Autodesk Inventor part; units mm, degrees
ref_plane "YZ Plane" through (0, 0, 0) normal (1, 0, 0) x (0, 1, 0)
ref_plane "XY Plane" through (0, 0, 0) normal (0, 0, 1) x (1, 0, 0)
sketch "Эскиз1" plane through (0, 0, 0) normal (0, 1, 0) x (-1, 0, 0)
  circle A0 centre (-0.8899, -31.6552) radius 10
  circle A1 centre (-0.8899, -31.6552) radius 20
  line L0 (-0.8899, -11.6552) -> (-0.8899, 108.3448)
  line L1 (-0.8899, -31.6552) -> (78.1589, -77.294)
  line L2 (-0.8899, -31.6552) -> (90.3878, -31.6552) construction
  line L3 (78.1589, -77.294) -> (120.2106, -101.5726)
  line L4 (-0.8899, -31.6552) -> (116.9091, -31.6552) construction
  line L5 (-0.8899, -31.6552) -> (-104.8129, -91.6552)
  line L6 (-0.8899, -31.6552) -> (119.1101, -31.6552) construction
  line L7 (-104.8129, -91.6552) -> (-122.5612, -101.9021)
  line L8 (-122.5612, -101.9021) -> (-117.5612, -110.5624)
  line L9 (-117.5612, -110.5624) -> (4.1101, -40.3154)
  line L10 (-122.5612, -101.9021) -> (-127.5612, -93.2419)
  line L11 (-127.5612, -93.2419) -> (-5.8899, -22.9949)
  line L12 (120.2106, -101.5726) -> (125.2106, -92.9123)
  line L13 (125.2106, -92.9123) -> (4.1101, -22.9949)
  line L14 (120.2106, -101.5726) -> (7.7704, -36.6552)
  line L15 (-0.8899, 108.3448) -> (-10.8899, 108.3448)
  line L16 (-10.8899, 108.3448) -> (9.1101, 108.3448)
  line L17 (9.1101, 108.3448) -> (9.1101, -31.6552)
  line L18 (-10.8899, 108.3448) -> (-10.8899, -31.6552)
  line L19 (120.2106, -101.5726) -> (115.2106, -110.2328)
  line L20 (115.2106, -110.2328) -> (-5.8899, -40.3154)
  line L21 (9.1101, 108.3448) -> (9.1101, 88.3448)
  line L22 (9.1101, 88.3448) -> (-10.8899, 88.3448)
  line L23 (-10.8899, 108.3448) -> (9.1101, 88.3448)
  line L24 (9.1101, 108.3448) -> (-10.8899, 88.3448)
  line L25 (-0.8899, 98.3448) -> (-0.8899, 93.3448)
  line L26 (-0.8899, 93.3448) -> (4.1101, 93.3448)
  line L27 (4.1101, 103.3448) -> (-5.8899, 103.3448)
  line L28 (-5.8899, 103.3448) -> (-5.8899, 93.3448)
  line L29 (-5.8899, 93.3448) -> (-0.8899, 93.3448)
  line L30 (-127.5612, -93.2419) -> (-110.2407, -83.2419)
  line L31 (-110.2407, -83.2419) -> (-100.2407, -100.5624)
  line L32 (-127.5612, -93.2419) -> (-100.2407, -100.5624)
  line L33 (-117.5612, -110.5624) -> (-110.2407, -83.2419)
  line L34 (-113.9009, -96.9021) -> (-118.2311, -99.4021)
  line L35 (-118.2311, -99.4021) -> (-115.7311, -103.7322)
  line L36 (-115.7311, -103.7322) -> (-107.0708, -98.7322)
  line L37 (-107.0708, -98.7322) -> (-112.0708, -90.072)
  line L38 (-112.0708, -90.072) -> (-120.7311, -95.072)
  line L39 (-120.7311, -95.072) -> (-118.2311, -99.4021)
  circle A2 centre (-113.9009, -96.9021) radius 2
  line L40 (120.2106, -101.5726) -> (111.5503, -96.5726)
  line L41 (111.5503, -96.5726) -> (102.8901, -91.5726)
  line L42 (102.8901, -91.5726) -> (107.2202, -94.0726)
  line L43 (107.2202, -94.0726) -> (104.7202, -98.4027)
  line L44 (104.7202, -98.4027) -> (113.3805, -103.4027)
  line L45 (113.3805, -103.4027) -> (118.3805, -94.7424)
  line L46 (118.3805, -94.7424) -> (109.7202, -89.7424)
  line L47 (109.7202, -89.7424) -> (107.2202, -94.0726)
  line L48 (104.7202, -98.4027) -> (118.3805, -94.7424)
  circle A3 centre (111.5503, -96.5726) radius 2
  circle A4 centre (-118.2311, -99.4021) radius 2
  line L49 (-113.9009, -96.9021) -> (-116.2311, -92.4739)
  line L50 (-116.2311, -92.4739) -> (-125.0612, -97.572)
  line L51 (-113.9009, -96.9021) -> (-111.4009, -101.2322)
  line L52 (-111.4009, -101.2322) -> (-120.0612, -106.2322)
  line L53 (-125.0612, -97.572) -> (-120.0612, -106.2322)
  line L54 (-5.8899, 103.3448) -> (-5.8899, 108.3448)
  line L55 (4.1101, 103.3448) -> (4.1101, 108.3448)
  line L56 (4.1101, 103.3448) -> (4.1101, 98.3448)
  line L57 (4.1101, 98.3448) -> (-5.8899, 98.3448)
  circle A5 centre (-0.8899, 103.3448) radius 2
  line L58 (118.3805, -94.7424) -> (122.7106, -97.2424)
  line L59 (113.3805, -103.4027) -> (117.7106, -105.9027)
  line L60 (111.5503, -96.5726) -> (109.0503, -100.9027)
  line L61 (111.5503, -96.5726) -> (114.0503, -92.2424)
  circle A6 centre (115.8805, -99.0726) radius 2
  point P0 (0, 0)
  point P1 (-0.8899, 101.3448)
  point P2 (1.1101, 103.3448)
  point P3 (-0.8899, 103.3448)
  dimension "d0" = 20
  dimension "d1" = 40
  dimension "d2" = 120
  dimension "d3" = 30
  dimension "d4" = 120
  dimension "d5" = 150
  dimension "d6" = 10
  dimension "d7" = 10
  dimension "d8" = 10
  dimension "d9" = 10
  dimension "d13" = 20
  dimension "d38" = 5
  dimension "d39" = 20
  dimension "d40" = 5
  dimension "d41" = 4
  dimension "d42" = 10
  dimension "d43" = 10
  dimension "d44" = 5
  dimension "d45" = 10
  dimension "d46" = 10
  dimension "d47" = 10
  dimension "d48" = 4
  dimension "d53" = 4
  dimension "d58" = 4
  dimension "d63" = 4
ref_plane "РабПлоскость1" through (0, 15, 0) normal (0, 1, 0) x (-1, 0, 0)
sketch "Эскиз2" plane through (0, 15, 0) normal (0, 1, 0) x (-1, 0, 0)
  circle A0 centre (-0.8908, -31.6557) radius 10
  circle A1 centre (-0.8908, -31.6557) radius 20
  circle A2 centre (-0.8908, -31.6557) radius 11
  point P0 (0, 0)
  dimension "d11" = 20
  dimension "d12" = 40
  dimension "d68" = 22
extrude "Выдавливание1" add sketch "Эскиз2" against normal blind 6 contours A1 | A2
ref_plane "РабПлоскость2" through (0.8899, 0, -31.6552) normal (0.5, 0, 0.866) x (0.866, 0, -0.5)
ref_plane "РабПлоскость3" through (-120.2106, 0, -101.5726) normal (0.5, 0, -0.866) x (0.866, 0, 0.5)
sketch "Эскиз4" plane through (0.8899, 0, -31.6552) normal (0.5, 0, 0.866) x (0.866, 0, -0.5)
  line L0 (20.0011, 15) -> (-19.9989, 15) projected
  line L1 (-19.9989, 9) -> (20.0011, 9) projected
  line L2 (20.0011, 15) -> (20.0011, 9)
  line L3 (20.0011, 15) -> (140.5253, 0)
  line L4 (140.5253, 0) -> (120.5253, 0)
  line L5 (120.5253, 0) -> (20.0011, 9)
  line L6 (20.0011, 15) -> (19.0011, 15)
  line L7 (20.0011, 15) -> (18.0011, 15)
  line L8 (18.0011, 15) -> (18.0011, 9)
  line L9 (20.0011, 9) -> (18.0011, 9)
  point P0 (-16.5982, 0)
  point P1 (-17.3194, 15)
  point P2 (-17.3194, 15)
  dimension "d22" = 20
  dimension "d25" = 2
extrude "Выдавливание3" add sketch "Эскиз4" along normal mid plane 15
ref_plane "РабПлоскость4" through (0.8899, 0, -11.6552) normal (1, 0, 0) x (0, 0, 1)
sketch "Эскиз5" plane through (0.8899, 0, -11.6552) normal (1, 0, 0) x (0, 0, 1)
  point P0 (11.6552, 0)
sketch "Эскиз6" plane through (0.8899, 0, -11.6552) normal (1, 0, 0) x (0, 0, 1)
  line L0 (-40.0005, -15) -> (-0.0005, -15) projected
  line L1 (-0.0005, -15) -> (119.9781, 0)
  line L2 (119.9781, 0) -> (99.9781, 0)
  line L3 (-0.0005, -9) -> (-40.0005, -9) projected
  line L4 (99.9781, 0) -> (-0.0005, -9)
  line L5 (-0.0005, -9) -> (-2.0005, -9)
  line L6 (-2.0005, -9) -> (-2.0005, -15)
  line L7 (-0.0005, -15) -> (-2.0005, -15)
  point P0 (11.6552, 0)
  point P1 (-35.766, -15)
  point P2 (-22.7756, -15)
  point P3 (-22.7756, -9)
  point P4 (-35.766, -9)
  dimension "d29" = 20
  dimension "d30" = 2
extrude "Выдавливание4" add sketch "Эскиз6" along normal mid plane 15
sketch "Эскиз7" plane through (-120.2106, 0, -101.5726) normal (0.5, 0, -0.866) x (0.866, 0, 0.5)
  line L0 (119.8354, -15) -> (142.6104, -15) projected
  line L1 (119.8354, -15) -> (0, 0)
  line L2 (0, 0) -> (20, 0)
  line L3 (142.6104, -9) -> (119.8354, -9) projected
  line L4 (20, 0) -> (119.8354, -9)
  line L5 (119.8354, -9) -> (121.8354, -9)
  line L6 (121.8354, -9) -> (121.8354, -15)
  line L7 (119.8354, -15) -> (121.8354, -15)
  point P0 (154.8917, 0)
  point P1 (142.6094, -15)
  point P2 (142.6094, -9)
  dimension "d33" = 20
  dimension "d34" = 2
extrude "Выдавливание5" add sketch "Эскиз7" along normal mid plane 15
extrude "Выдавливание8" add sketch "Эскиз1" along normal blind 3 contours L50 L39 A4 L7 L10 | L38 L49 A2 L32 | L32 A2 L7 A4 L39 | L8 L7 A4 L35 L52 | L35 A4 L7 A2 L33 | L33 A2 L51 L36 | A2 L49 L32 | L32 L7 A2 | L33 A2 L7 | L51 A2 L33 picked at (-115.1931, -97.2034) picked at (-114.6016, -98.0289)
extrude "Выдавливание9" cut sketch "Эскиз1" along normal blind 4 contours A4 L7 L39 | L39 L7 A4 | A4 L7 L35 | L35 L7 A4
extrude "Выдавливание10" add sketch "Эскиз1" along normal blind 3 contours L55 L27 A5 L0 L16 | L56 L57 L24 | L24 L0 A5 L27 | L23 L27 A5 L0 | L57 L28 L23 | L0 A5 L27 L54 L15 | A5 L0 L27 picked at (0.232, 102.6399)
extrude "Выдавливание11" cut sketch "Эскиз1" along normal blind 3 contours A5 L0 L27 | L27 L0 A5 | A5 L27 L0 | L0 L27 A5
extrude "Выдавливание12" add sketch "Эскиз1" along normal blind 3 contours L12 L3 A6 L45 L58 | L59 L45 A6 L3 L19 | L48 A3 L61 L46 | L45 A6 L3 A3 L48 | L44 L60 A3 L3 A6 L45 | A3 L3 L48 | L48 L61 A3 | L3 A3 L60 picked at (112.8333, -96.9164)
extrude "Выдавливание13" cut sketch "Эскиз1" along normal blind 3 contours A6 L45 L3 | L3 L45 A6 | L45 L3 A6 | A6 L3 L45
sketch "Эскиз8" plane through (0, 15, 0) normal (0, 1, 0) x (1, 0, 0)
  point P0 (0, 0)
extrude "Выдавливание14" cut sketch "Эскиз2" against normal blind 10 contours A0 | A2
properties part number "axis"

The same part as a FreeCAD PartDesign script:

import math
import FreeCAD as App
import Part
import Sketcher
Q = App.Units.Quantity

doc = App.newDocument("Part")
params = doc.addObject("Spreadsheet::Sheet", "Params")
for row, (alias, value) in enumerate([
    ("sketch1_diameter", "40 mm"),
    ("sketch1_diameter2", "20 mm"),
    ("pad1_length", "6 mm"),
    ("sketch2_width", "2 mm"),
    ("sketch2_width2", "20 mm"),
    ("sketch2_height", "6 mm"),
    ("pad2_length", "15 mm"),
    ("sketch3_height", "2 mm"),
    ("sketch3_height2", "20 mm"),
    ("sketch3_width", "6 mm"),
    ("pad3_length", "15 mm"),
    ("sketch4_width", "2 mm"),
    ("sketch4_width2", "20 mm"),
    ("sketch4_height", "6 mm"),
    ("pad4_length", "15 mm"),
    ("sketch5_diameter", "4 mm"),
    ("sketch5_length", "5 mm"),
    ("pad5_length", "3 mm"),
    ("sketch6_diameter", "4 mm"),
    ("pocket1_length", "4 mm"),
    ("sketch7_radius", "2 mm"),
    ("sketch7_width", "10 mm"),
    ("pad6_length", "3 mm"),
    ("sketch8_diameter", "4 mm"),
    ("pocket2_length", "3 mm"),
    ("sketch9_diameter", "4 mm"),
    ("sketch9_length", "5 mm"),
    ("pad7_length", "3 mm"),
    ("sketch10_diameter", "4 mm"),
    ("pocket3_length", "3 mm"),
    ("sketch11_diameter", "22 mm"),
    ("pocket4_length", "10 mm"),
], start=1):
    params.set(f"A{row}", alias)
    params.set(f"B{row}", "=" + value)
    params.setAlias(f"B{row}", alias)

body = doc.addObject("PartDesign::Body", "Body")

# Sketch on XZ plane
sketch1 = body.newObject("Sketcher::SketchObject", "Sketch")
sketch1.AttachmentSupport = (doc.getObject("XZ_Plane"), [""])
sketch1.MapMode = "FlatFace"
sketch1.AttachmentOffset = App.Placement(App.Vector(0, 0, -15), App.Rotation())
sketch1.addGeometry(Part.Circle(App.Vector(1, -32, 0), App.Vector(0, 0, 1), 20), False)
sketch1.addGeometry(Part.Circle(App.Vector(1, -32, 0), App.Vector(0, 0, 1), 10), False)
sketch1.addConstraint(Sketcher.Constraint("Coincident", 1, 3, 0, 3))
sketch1.addConstraint(Sketcher.Constraint("Diameter", 0, Q("40 mm")))
sketch1.addConstraint(Sketcher.Constraint("Diameter", 1, Q("20 mm")))
sketch1.addConstraint(Sketcher.Constraint("DistanceX", -1, 1, 0, 3, Q("0.8908 mm")))
sketch1.addConstraint(Sketcher.Constraint("DistanceY", 0, 3, -1, 1, Q("31.6557 mm")))
sketch1.setExpression("Constraints[1]", "Params.sketch1_diameter")
sketch1.setExpression("Constraints[2]", "Params.sketch1_diameter2")
pad1 = body.newObject("PartDesign::Pad", "Pad")
pad1.Profile = sketch1
pad1.setExpression("Length", "Params.pad1_length")

# Sketch on an angled plane
sketch2 = body.newObject("Sketcher::SketchObject", "Sketch001")
sketch2.Placement = App.Placement(App.Vector(0.8899, 0, -31.6552), App.Rotation(App.Vector(0.866025404, 0, -0.5), App.Vector(0, 1, 0), App.Vector(0.5, 0, 0.866025404), "ZXY"))
sketch2.addGeometry(Part.LineSegment(App.Vector(18, 9, 0), App.Vector(20, 9, 0)), False)
sketch2.addGeometry(Part.LineSegment(App.Vector(20, 9, 0), App.Vector(120.5, 0, 0)), False)
sketch2.addGeometry(Part.LineSegment(App.Vector(120.5, 0, 0), App.Vector(140.5, 0, 0)), False)
sketch2.addGeometry(Part.LineSegment(App.Vector(140.5, 0, 0), App.Vector(20, 15, 0)), False)
sketch2.addGeometry(Part.LineSegment(App.Vector(20, 15, 0), App.Vector(18, 15, 0)), False)
sketch2.addGeometry(Part.LineSegment(App.Vector(18, 15, 0), App.Vector(18, 9, 0)), False)
sketch2.addConstraint(Sketcher.Constraint("Coincident", 0, 2, 1, 1))
sketch2.addConstraint(Sketcher.Constraint("Coincident", 1, 2, 2, 1))
sketch2.addConstraint(Sketcher.Constraint("Coincident", 2, 2, 3, 1))
sketch2.addConstraint(Sketcher.Constraint("Coincident", 3, 2, 4, 1))
sketch2.addConstraint(Sketcher.Constraint("Coincident", 4, 2, 5, 1))
sketch2.addConstraint(Sketcher.Constraint("Coincident", 5, 2, 0, 1))
sketch2.addConstraint(Sketcher.Constraint("Horizontal", 0))
sketch2.addConstraint(Sketcher.Constraint("Horizontal", 2))
sketch2.addConstraint(Sketcher.Constraint("Horizontal", 4))
sketch2.addConstraint(Sketcher.Constraint("Vertical", 5))
sketch2.addConstraint(Sketcher.Constraint("PointOnObject", 1, 2, -1))
sketch2.addConstraint(Sketcher.Constraint("Vertical", 0, 2, 3, 2))
sketch2.addConstraint(Sketcher.Constraint("DistanceX", 0, 1, 0, 2, Q("2 mm")))
sketch2.addConstraint(Sketcher.Constraint("DistanceX", 2, 1, 2, 2, Q("20 mm")))
sketch2.addConstraint(Sketcher.Constraint("DistanceY", 5, 2, 5, 1, Q("6 mm")))
sketch2.addConstraint(Sketcher.Constraint("DistanceY", -1, 1, 0, 2, Q("9 mm")))
sketch2.addConstraint(Sketcher.Constraint("Distance", 3, Q("121.454 mm")))
sketch2.addConstraint(Sketcher.Constraint("DistanceX", -1, 1, 0, 2, Q("20.001 mm")))
sketch2.setExpression("Constraints[12]", "Params.sketch2_width")
sketch2.setExpression("Constraints[13]", "Params.sketch2_width2")
sketch2.setExpression("Constraints[14]", "Params.sketch2_height")
pad2 = body.newObject("PartDesign::Pad", "Pad001")
pad2.Profile = sketch2
pad2.setExpression("Length", "Params.pad2_length")
pad2.Midplane = True

# Sketch on YZ plane
sketch3 = body.newObject("Sketcher::SketchObject", "Sketch002")
sketch3.AttachmentSupport = (doc.getObject("YZ_Plane"), [""])
sketch3.MapMode = "FlatFace"
sketch3.AttachmentOffset = App.Placement(App.Vector(0, 0, 0.8899), App.Rotation())
sketch3.addGeometry(Part.LineSegment(App.Vector(9, -13.7, 0), App.Vector(15, -13.7, 0)), False)
sketch3.addGeometry(Part.LineSegment(App.Vector(15, -13.7, 0), App.Vector(15, -11.7, 0)), False)
sketch3.addGeometry(Part.LineSegment(App.Vector(15, -11.7, 0), App.Vector(0, 108.3, 0)), False)
sketch3.addGeometry(Part.LineSegment(App.Vector(0, 108.3, 0), App.Vector(0, 88.3, 0)), False)
sketch3.addGeometry(Part.LineSegment(App.Vector(0, 88.3, 0), App.Vector(9, -11.7, 0)), False)
sketch3.addGeometry(Part.LineSegment(App.Vector(9, -11.7, 0), App.Vector(9, -13.7, 0)), False)
sketch3.addConstraint(Sketcher.Constraint("Coincident", 0, 2, 1, 1))
sketch3.addConstraint(Sketcher.Constraint("Coincident", 1, 2, 2, 1))
sketch3.addConstraint(Sketcher.Constraint("Coincident", 2, 2, 3, 1))
sketch3.addConstraint(Sketcher.Constraint("Coincident", 3, 2, 4, 1))
sketch3.addConstraint(Sketcher.Constraint("Coincident", 4, 2, 5, 1))
sketch3.addConstraint(Sketcher.Constraint("Coincident", 5, 2, 0, 1))
sketch3.addConstraint(Sketcher.Constraint("Horizontal", 0))
sketch3.addConstraint(Sketcher.Constraint("Vertical", 1))
sketch3.addConstraint(Sketcher.Constraint("Vertical", 3))
sketch3.addConstraint(Sketcher.Constraint("Vertical", 5))
sketch3.addConstraint(Sketcher.Constraint("PointOnObject", 2, 2, -2))
sketch3.addConstraint(Sketcher.Constraint("Horizontal", 1, 2, 4, 2))
sketch3.addConstraint(Sketcher.Constraint("DistanceY", 1, 1, 1, 2, Q("2 mm")))
sketch3.addConstraint(Sketcher.Constraint("DistanceY", 3, 2, 3, 1, Q("20 mm")))
sketch3.addConstraint(Sketcher.Constraint("DistanceX", 0, 1, 0, 2, Q("6 mm")))
sketch3.addConstraint(Sketcher.Constraint("DistanceX", -1, 1, 0, 2, Q("15 mm")))
sketch3.addConstraint(Sketcher.Constraint("DistanceY", -1, 1, 2, 2, Q("108.323 mm")))
sketch3.addConstraint(Sketcher.Constraint("Distance", 2, Q("120.9126 mm")))
sketch3.setExpression("Constraints[12]", "Params.sketch3_height")
sketch3.setExpression("Constraints[13]", "Params.sketch3_height2")
sketch3.setExpression("Constraints[14]", "Params.sketch3_width")
pad3 = body.newObject("PartDesign::Pad", "Pad002")
pad3.Profile = sketch3
pad3.setExpression("Length", "Params.pad3_length")
pad3.Midplane = True

# Sketch on an angled plane
sketch4 = body.newObject("Sketcher::SketchObject", "Sketch003")
sketch4.Placement = App.Placement(App.Vector(-120.2106, 0, -101.5726), App.Rotation(App.Vector(0.866025404, 0, 0.5), App.Vector(0, -1, 0), App.Vector(0.5, 0, -0.866025404), "ZXY"))
sketch4.addGeometry(Part.LineSegment(App.Vector(0, 0, 0), App.Vector(119.8, -15, 0)), False)
sketch4.addGeometry(Part.LineSegment(App.Vector(119.8, -15, 0), App.Vector(121.8, -15, 0)), False)
sketch4.addGeometry(Part.LineSegment(App.Vector(121.8, -15, 0), App.Vector(121.8, -9, 0)), False)
sketch4.addGeometry(Part.LineSegment(App.Vector(121.8, -9, 0), App.Vector(119.8, -9, 0)), False)
sketch4.addGeometry(Part.LineSegment(App.Vector(119.8, -9, 0), App.Vector(20, 0, 0)), False)
sketch4.addGeometry(Part.LineSegment(App.Vector(20, 0, 0), App.Vector(0, 0, 0)), False)
sketch4.addConstraint(Sketcher.Constraint("Coincident", 0, 2, 1, 1))
sketch4.addConstraint(Sketcher.Constraint("Coincident", 1, 2, 2, 1))
sketch4.addConstraint(Sketcher.Constraint("Coincident", 2, 2, 3, 1))
sketch4.addConstraint(Sketcher.Constraint("Coincident", 3, 2, 4, 1))
sketch4.addConstraint(Sketcher.Constraint("Coincident", 4, 2, 5, 1))
sketch4.addConstraint(Sketcher.Constraint("Coincident", 5, 2, 0, 1))
sketch4.addConstraint(Sketcher.Constraint("Horizontal", 1))
sketch4.addConstraint(Sketcher.Constraint("Vertical", 2))
sketch4.addConstraint(Sketcher.Constraint("Horizontal", 3))
sketch4.addConstraint(Sketcher.Constraint("Horizontal", 5))
sketch4.addConstraint(Sketcher.Constraint("Coincident", 5, 2, -1, 1))
sketch4.addConstraint(Sketcher.Constraint("Vertical", 0, 2, 3, 2))
sketch4.addConstraint(Sketcher.Constraint("DistanceX", 1, 1, 1, 2, Q("2 mm")))
sketch4.addConstraint(Sketcher.Constraint("DistanceX", 5, 2, 5, 1, Q("20 mm")))
sketch4.addConstraint(Sketcher.Constraint("DistanceY", 2, 1, 2, 2, Q("6 mm")))
sketch4.addConstraint(Sketcher.Constraint("DistanceY", 0, 2, -1, 1, Q("15 mm")))
sketch4.addConstraint(Sketcher.Constraint("Angle", 4, Q("174.8488 deg")))
sketch4.setExpression("Constraints[12]", "Params.sketch4_width")
sketch4.setExpression("Constraints[13]", "Params.sketch4_width2")
sketch4.setExpression("Constraints[14]", "Params.sketch4_height")
pad4 = body.newObject("PartDesign::Pad", "Pad003")
pad4.Profile = sketch4
pad4.setExpression("Length", "Params.pad4_length")
pad4.Midplane = True

# Sketch on XZ plane
sketch5 = body.newObject("Sketcher::SketchObject", "Sketch004")
sketch5.AttachmentSupport = (doc.getObject("XZ_Plane"), [""])
sketch5.MapMode = "FlatFace"
sketch5.addGeometry(Part.LineSegment(App.Vector(120.7, -95.1, 0), App.Vector(125.1, -97.6, 0)), False)
sketch5.addGeometry(Part.LineSegment(App.Vector(125.1, -97.6, 0), App.Vector(122.6, -101.9, 0)), False)
sketch5.addGeometry(Part.LineSegment(App.Vector(122.6, -101.9, 0), App.Vector(120.1, -106.2, 0)), False)
sketch5.addGeometry(Part.LineSegment(App.Vector(120.1, -106.2, 0), App.Vector(115.7, -103.7, 0)), False)
sketch5.addGeometry(Part.LineSegment(App.Vector(115.7, -103.7, 0), App.Vector(111.4, -101.2, 0)), False)
sketch5.addGeometry(Part.LineSegment(App.Vector(111.4, -101.2, 0), App.Vector(113.9, -96.9, 0)), False)
sketch5.addGeometry(Part.LineSegment(App.Vector(113.9, -96.9, 0), App.Vector(116.2, -92.5, 0)), False)
sketch5.addGeometry(Part.LineSegment(App.Vector(116.2, -92.5, 0), App.Vector(120.7, -95.1, 0)), False)
sketch5.addGeometry(Part.Circle(App.Vector(118.2, -99.4, 0), App.Vector(0, 0, 1), 2), False)
sketch5.addConstraint(Sketcher.Constraint("Coincident", 0, 2, 1, 1))
sketch5.addConstraint(Sketcher.Constraint("Coincident", 1, 2, 2, 1))
sketch5.addConstraint(Sketcher.Constraint("Coincident", 2, 2, 3, 1))
sketch5.addConstraint(Sketcher.Constraint("Coincident", 3, 2, 4, 1))
sketch5.addConstraint(Sketcher.Constraint("Coincident", 4, 2, 5, 1))
sketch5.addConstraint(Sketcher.Constraint("Coincident", 5, 2, 6, 1))
sketch5.addConstraint(Sketcher.Constraint("Coincident", 6, 2, 7, 1))
sketch5.addConstraint(Sketcher.Constraint("Coincident", 7, 2, 0, 1))
sketch5.addConstraint(Sketcher.Constraint("Perpendicular", 0, 1))
sketch5.addConstraint(Sketcher.Constraint("Parallel", 1, 2))
sketch5.addConstraint(Sketcher.Constraint("Perpendicular", 2, 3))
sketch5.addConstraint(Sketcher.Constraint("Parallel", 3, 4))
sketch5.addConstraint(Sketcher.Constraint("Perpendicular", 4, 5))
sketch5.addConstraint(Sketcher.Constraint("Perpendicular", 5, 7))
sketch5.addConstraint(Sketcher.Constraint("Equal", 0, 1))
sketch5.addConstraint(Sketcher.Constraint("Equal", 1, 2))
sketch5.addConstraint(Sketcher.Constraint("Equal", 2, 3))
sketch5.addConstraint(Sketcher.Constraint("Equal", 3, 4))
sketch5.addConstraint(Sketcher.Constraint("Equal", 4, 5))
sketch5.addConstraint(Sketcher.Constraint("Diameter", 8, Q("4 mm")))
sketch5.addConstraint(Sketcher.Constraint("Angle", 0, Q("-30.0002 deg")))
sketch5.addConstraint(Sketcher.Constraint("Distance", 0, Q("5 mm")))
sketch5.addConstraint(Sketcher.Constraint("DistanceX", 6, 2, 8, 3, Q("2 mm")))
sketch5.addConstraint(Sketcher.Constraint("DistanceY", 1, 2, 8, 3, Q("2.5 mm")))
sketch5.addConstraint(Sketcher.Constraint("DistanceX", 3, 2, 8, 3, Q("2.5 mm")))
sketch5.addConstraint(Sketcher.Constraint("DistanceX", -1, 1, 8, 3, Q("118.231 mm")))
sketch5.addConstraint(Sketcher.Constraint("DistanceY", 8, 3, -1, 1, Q("99.402 mm")))
sketch5.setExpression("Constraints[19]", "Params.sketch5_diameter")
sketch5.setExpression("Constraints[21]", "Params.sketch5_length")
pad5 = body.newObject("PartDesign::Pad", "Pad004")
pad5.Profile = sketch5
pad5.setExpression("Length", "Params.pad5_length")
pad5.Reversed = True

# Sketch on XZ plane
sketch6 = body.newObject("Sketcher::SketchObject", "Sketch005")
sketch6.AttachmentSupport = (doc.getObject("XZ_Plane"), [""])
sketch6.MapMode = "FlatFace"
sketch6.addGeometry(Part.Circle(App.Vector(118.2, -99.4, 0), App.Vector(0, 0, 1), 2), False)
sketch6.addConstraint(Sketcher.Constraint("Diameter", 0, Q("4 mm")))
sketch6.addConstraint(Sketcher.Constraint("DistanceX", -1, 1, 0, 3, Q("118.231 mm")))
sketch6.addConstraint(Sketcher.Constraint("DistanceY", 0, 3, -1, 1, Q("99.402 mm")))
sketch6.setExpression("Constraints[0]", "Params.sketch6_diameter")
pocket1 = body.newObject("PartDesign::Pocket", "Pocket")
pocket1.Profile = sketch6
pocket1.setExpression("Length", "Params.pocket1_length")

# Sketch on XZ plane
sketch7 = body.newObject("Sketcher::SketchObject", "Sketch006")
sketch7.AttachmentSupport = (doc.getObject("XZ_Plane"), [""])
sketch7.MapMode = "FlatFace"
sketch7.addGeometry(Part.LineSegment(App.Vector(-4.1, 108.3, 0), App.Vector(5.9, 108.3, 0)), False)
sketch7.addGeometry(Part.LineSegment(App.Vector(5.9, 108.3, 0), App.Vector(5.9, 98.3, 0)), False)
sketch7.addGeometry(Part.LineSegment(App.Vector(5.9, 98.3, 0), App.Vector(-4.1, 98.3, 0)), False)
sketch7.addGeometry(Part.LineSegment(App.Vector(-4.1, 98.3, 0), App.Vector(-4.1, 108.3, 0)), False)
sketch7.addGeometry(Part.LineSegment(App.Vector(-1.1, 103.3, 0), App.Vector(0.9, 103.3, 0)), False)
sketch7.addGeometry(Part.LineSegment(App.Vector(0.9, 103.3, 0), App.Vector(0.9, 101.3, 0)), False)
sketch7.addGeometry(Part.ArcOfCircle(Part.Circle(App.Vector(0.9, 103.3, 0), App.Vector(0, 0, 1), 2), math.radians(-90), math.radians(180)), False)
sketch7.addConstraint(Sketcher.Constraint("Coincident", 0, 2, 1, 1))
sketch7.addConstraint(Sketcher.Constraint("Coincident", 1, 2, 2, 1))
sketch7.addConstraint(Sketcher.Constraint("Coincident", 2, 2, 3, 1))
sketch7.addConstraint(Sketcher.Constraint("Coincident", 3, 2, 0, 1))
sketch7.addConstraint(Sketcher.Constraint("Coincident", 4, 2, 5, 1))
sketch7.addConstraint(Sketcher.Constraint("Coincident", 5, 2, 6, 1))
sketch7.addConstraint(Sketcher.Constraint("Coincident", 6, 2, 4, 1))
sketch7.addConstraint(Sketcher.Constraint("Horizontal", 0))
sketch7.addConstraint(Sketcher.Constraint("Vertical", 1))
sketch7.addConstraint(Sketcher.Constraint("Horizontal", 2))
sketch7.addConstraint(Sketcher.Constraint("Vertical", 3))
sketch7.addConstraint(Sketcher.Constraint("Horizontal", 4))
sketch7.addConstraint(Sketcher.Constraint("Vertical", 5))
sketch7.addConstraint(Sketcher.Constraint("Coincident", 4, 2, 6, 3))
sketch7.addConstraint(Sketcher.Constraint("Equal", 2, 1))
sketch7.addConstraint(Sketcher.Constraint("Radius", 6, Q("2 mm")))
sketch7.addConstraint(Sketcher.Constraint("DistanceX", 0, 1, 0, 2, Q("10 mm")))
sketch7.addConstraint(Sketcher.Constraint("DistanceX", 6, 3, 0, 2, Q("5 mm")))
sketch7.addConstraint(Sketcher.Constraint("DistanceY", 6, 3, 0, 2, Q("5 mm")))
sketch7.addConstraint(Sketcher.Constraint("DistanceX", -1, 1, 6, 3, Q("0.89 mm")))
sketch7.addConstraint(Sketcher.Constraint("DistanceY", -1, 1, 6, 3, Q("103.3448 mm")))
sketch7.setExpression("Constraints[15]", "Params.sketch7_radius")
sketch7.setExpression("Constraints[16]", "Params.sketch7_width")
pad6 = body.newObject("PartDesign::Pad", "Pad005")
pad6.Profile = sketch7
pad6.setExpression("Length", "Params.pad6_length")
pad6.Reversed = True

# Sketch on XZ plane
sketch8 = body.newObject("Sketcher::SketchObject", "Sketch007")
sketch8.AttachmentSupport = (doc.getObject("XZ_Plane"), [""])
sketch8.MapMode = "FlatFace"
sketch8.addGeometry(Part.Circle(App.Vector(0.9, 103.3, 0), App.Vector(0, 0, 1), 2), False)
sketch8.addConstraint(Sketcher.Constraint("Diameter", 0, Q("4 mm")))
sketch8.addConstraint(Sketcher.Constraint("DistanceX", -1, 1, 0, 3, Q("0.89 mm")))
sketch8.addConstraint(Sketcher.Constraint("DistanceY", -1, 1, 0, 3, Q("103.3448 mm")))
sketch8.setExpression("Constraints[0]", "Params.sketch8_diameter")
pocket2 = body.newObject("PartDesign::Pocket", "Pocket001")
pocket2.Profile = sketch8
pocket2.setExpression("Length", "Params.pocket2_length")

# Sketch on XZ plane
sketch9 = body.newObject("Sketcher::SketchObject", "Sketch008")
sketch9.AttachmentSupport = (doc.getObject("XZ_Plane"), [""])
sketch9.MapMode = "FlatFace"
sketch9.addGeometry(Part.LineSegment(App.Vector(-120.2, -101.6, 0), App.Vector(-122.7, -97.2, 0)), False)
sketch9.addGeometry(Part.LineSegment(App.Vector(-122.7, -97.2, 0), App.Vector(-118.4, -94.7, 0)), False)
sketch9.addGeometry(Part.LineSegment(App.Vector(-118.4, -94.7, 0), App.Vector(-114.1, -92.2, 0)), False)
sketch9.addGeometry(Part.LineSegment(App.Vector(-114.1, -92.2, 0), App.Vector(-111.6, -96.6, 0)), False)
sketch9.addGeometry(Part.LineSegment(App.Vector(-111.6, -96.6, 0), App.Vector(-109.1, -100.9, 0)), False)
sketch9.addGeometry(Part.LineSegment(App.Vector(-109.1, -100.9, 0), App.Vector(-113.4, -103.4, 0)), False)
sketch9.addGeometry(Part.LineSegment(App.Vector(-113.4, -103.4, 0), App.Vector(-117.7, -105.9, 0)), False)
sketch9.addGeometry(Part.LineSegment(App.Vector(-117.7, -105.9, 0), App.Vector(-120.2, -101.6, 0)), False)
sketch9.addGeometry(Part.Circle(App.Vector(-115.9, -99.1, 0), App.Vector(0, 0, 1), 2), False)
sketch9.addConstraint(Sketcher.Constraint("Coincident", 0, 2, 1, 1))
sketch9.addConstraint(Sketcher.Constraint("Coincident", 1, 2, 2, 1))
sketch9.addConstraint(Sketcher.Constraint("Coincident", 2, 2, 3, 1))
sketch9.addConstraint(Sketcher.Constraint("Coincident", 3, 2, 4, 1))
sketch9.addConstraint(Sketcher.Constraint("Coincident", 4, 2, 5, 1))
sketch9.addConstraint(Sketcher.Constraint("Coincident", 5, 2, 6, 1))
sketch9.addConstraint(Sketcher.Constraint("Coincident", 6, 2, 7, 1))
sketch9.addConstraint(Sketcher.Constraint("Coincident", 7, 2, 0, 1))
sketch9.addConstraint(Sketcher.Constraint("Perpendicular", 0, 1))
sketch9.addConstraint(Sketcher.Constraint("Parallel", 1, 2))
sketch9.addConstraint(Sketcher.Constraint("Perpendicular", 2, 3))
sketch9.addConstraint(Sketcher.Constraint("Parallel", 3, 4))
sketch9.addConstraint(Sketcher.Constraint("Perpendicular", 4, 5))
sketch9.addConstraint(Sketcher.Constraint("Parallel", 5, 6))
sketch9.addConstraint(Sketcher.Constraint("Perpendicular", 6, 7))
sketch9.addConstraint(Sketcher.Constraint("Equal", 0, 1))
sketch9.addConstraint(Sketcher.Constraint("Equal", 1, 2))
sketch9.addConstraint(Sketcher.Constraint("Equal", 2, 3))
sketch9.addConstraint(Sketcher.Constraint("Equal", 3, 4))
sketch9.addConstraint(Sketcher.Constraint("Equal", 4, 5))
sketch9.addConstraint(Sketcher.Constraint("Diameter", 8, Q("4 mm")))
sketch9.addConstraint(Sketcher.Constraint("Angle", 0, Q("119.9999 deg")))
sketch9.addConstraint(Sketcher.Constraint("Distance", 0, Q("5 mm")))
sketch9.addConstraint(Sketcher.Constraint("DistanceX", 1, 2, 8, 3, Q("2.5 mm")))
sketch9.addConstraint(Sketcher.Constraint("DistanceY", 8, 3, 3, 2, Q("2.5 mm")))
sketch9.addConstraint(Sketcher.Constraint("DistanceX", 8, 3, -1, 1, Q("115.8805 mm")))
sketch9.addConstraint(Sketcher.Constraint("DistanceY", 8, 3, -1, 1, Q("99.0726 mm")))
sketch9.setExpression("Constraints[20]", "Params.sketch9_diameter")
sketch9.setExpression("Constraints[22]", "Params.sketch9_length")
pad7 = body.newObject("PartDesign::Pad", "Pad006")
pad7.Profile = sketch9
pad7.setExpression("Length", "Params.pad7_length")
pad7.Reversed = True

# Sketch on XZ plane
sketch10 = body.newObject("Sketcher::SketchObject", "Sketch009")
sketch10.AttachmentSupport = (doc.getObject("XZ_Plane"), [""])
sketch10.MapMode = "FlatFace"
sketch10.addGeometry(Part.Circle(App.Vector(-115.9, -99.1, 0), App.Vector(0, 0, 1), 2), False)
sketch10.addConstraint(Sketcher.Constraint("Diameter", 0, Q("4 mm")))
sketch10.addConstraint(Sketcher.Constraint("DistanceX", 0, 3, -1, 1, Q("115.8805 mm")))
sketch10.addConstraint(Sketcher.Constraint("DistanceY", 0, 3, -1, 1, Q("99.0726 mm")))
sketch10.setExpression("Constraints[0]", "Params.sketch10_diameter")
pocket3 = body.newObject("PartDesign::Pocket", "Pocket002")
pocket3.Profile = sketch10
pocket3.setExpression("Length", "Params.pocket3_length")

# Sketch on XZ plane
sketch11 = body.newObject("Sketcher::SketchObject", "Sketch010")
sketch11.AttachmentSupport = (doc.getObject("XZ_Plane"), [""])
sketch11.MapMode = "FlatFace"
sketch11.AttachmentOffset = App.Placement(App.Vector(0, 0, -15), App.Rotation())
sketch11.addGeometry(Part.Circle(App.Vector(1, -32, 0), App.Vector(0, 0, 1), 11), False)
sketch11.addConstraint(Sketcher.Constraint("Diameter", 0, Q("22 mm")))
sketch11.addConstraint(Sketcher.Constraint("DistanceX", -1, 1, 0, 3, Q("0.8908 mm")))
sketch11.addConstraint(Sketcher.Constraint("DistanceY", 0, 3, -1, 1, Q("31.6557 mm")))
sketch11.setExpression("Constraints[0]", "Params.sketch11_diameter")
pocket4 = body.newObject("PartDesign::Pocket", "Pocket003")
pocket4.Profile = sketch11
pocket4.setExpression("Length", "Params.pocket4_length")
pocket4.Reversed = True

doc.recompute()
